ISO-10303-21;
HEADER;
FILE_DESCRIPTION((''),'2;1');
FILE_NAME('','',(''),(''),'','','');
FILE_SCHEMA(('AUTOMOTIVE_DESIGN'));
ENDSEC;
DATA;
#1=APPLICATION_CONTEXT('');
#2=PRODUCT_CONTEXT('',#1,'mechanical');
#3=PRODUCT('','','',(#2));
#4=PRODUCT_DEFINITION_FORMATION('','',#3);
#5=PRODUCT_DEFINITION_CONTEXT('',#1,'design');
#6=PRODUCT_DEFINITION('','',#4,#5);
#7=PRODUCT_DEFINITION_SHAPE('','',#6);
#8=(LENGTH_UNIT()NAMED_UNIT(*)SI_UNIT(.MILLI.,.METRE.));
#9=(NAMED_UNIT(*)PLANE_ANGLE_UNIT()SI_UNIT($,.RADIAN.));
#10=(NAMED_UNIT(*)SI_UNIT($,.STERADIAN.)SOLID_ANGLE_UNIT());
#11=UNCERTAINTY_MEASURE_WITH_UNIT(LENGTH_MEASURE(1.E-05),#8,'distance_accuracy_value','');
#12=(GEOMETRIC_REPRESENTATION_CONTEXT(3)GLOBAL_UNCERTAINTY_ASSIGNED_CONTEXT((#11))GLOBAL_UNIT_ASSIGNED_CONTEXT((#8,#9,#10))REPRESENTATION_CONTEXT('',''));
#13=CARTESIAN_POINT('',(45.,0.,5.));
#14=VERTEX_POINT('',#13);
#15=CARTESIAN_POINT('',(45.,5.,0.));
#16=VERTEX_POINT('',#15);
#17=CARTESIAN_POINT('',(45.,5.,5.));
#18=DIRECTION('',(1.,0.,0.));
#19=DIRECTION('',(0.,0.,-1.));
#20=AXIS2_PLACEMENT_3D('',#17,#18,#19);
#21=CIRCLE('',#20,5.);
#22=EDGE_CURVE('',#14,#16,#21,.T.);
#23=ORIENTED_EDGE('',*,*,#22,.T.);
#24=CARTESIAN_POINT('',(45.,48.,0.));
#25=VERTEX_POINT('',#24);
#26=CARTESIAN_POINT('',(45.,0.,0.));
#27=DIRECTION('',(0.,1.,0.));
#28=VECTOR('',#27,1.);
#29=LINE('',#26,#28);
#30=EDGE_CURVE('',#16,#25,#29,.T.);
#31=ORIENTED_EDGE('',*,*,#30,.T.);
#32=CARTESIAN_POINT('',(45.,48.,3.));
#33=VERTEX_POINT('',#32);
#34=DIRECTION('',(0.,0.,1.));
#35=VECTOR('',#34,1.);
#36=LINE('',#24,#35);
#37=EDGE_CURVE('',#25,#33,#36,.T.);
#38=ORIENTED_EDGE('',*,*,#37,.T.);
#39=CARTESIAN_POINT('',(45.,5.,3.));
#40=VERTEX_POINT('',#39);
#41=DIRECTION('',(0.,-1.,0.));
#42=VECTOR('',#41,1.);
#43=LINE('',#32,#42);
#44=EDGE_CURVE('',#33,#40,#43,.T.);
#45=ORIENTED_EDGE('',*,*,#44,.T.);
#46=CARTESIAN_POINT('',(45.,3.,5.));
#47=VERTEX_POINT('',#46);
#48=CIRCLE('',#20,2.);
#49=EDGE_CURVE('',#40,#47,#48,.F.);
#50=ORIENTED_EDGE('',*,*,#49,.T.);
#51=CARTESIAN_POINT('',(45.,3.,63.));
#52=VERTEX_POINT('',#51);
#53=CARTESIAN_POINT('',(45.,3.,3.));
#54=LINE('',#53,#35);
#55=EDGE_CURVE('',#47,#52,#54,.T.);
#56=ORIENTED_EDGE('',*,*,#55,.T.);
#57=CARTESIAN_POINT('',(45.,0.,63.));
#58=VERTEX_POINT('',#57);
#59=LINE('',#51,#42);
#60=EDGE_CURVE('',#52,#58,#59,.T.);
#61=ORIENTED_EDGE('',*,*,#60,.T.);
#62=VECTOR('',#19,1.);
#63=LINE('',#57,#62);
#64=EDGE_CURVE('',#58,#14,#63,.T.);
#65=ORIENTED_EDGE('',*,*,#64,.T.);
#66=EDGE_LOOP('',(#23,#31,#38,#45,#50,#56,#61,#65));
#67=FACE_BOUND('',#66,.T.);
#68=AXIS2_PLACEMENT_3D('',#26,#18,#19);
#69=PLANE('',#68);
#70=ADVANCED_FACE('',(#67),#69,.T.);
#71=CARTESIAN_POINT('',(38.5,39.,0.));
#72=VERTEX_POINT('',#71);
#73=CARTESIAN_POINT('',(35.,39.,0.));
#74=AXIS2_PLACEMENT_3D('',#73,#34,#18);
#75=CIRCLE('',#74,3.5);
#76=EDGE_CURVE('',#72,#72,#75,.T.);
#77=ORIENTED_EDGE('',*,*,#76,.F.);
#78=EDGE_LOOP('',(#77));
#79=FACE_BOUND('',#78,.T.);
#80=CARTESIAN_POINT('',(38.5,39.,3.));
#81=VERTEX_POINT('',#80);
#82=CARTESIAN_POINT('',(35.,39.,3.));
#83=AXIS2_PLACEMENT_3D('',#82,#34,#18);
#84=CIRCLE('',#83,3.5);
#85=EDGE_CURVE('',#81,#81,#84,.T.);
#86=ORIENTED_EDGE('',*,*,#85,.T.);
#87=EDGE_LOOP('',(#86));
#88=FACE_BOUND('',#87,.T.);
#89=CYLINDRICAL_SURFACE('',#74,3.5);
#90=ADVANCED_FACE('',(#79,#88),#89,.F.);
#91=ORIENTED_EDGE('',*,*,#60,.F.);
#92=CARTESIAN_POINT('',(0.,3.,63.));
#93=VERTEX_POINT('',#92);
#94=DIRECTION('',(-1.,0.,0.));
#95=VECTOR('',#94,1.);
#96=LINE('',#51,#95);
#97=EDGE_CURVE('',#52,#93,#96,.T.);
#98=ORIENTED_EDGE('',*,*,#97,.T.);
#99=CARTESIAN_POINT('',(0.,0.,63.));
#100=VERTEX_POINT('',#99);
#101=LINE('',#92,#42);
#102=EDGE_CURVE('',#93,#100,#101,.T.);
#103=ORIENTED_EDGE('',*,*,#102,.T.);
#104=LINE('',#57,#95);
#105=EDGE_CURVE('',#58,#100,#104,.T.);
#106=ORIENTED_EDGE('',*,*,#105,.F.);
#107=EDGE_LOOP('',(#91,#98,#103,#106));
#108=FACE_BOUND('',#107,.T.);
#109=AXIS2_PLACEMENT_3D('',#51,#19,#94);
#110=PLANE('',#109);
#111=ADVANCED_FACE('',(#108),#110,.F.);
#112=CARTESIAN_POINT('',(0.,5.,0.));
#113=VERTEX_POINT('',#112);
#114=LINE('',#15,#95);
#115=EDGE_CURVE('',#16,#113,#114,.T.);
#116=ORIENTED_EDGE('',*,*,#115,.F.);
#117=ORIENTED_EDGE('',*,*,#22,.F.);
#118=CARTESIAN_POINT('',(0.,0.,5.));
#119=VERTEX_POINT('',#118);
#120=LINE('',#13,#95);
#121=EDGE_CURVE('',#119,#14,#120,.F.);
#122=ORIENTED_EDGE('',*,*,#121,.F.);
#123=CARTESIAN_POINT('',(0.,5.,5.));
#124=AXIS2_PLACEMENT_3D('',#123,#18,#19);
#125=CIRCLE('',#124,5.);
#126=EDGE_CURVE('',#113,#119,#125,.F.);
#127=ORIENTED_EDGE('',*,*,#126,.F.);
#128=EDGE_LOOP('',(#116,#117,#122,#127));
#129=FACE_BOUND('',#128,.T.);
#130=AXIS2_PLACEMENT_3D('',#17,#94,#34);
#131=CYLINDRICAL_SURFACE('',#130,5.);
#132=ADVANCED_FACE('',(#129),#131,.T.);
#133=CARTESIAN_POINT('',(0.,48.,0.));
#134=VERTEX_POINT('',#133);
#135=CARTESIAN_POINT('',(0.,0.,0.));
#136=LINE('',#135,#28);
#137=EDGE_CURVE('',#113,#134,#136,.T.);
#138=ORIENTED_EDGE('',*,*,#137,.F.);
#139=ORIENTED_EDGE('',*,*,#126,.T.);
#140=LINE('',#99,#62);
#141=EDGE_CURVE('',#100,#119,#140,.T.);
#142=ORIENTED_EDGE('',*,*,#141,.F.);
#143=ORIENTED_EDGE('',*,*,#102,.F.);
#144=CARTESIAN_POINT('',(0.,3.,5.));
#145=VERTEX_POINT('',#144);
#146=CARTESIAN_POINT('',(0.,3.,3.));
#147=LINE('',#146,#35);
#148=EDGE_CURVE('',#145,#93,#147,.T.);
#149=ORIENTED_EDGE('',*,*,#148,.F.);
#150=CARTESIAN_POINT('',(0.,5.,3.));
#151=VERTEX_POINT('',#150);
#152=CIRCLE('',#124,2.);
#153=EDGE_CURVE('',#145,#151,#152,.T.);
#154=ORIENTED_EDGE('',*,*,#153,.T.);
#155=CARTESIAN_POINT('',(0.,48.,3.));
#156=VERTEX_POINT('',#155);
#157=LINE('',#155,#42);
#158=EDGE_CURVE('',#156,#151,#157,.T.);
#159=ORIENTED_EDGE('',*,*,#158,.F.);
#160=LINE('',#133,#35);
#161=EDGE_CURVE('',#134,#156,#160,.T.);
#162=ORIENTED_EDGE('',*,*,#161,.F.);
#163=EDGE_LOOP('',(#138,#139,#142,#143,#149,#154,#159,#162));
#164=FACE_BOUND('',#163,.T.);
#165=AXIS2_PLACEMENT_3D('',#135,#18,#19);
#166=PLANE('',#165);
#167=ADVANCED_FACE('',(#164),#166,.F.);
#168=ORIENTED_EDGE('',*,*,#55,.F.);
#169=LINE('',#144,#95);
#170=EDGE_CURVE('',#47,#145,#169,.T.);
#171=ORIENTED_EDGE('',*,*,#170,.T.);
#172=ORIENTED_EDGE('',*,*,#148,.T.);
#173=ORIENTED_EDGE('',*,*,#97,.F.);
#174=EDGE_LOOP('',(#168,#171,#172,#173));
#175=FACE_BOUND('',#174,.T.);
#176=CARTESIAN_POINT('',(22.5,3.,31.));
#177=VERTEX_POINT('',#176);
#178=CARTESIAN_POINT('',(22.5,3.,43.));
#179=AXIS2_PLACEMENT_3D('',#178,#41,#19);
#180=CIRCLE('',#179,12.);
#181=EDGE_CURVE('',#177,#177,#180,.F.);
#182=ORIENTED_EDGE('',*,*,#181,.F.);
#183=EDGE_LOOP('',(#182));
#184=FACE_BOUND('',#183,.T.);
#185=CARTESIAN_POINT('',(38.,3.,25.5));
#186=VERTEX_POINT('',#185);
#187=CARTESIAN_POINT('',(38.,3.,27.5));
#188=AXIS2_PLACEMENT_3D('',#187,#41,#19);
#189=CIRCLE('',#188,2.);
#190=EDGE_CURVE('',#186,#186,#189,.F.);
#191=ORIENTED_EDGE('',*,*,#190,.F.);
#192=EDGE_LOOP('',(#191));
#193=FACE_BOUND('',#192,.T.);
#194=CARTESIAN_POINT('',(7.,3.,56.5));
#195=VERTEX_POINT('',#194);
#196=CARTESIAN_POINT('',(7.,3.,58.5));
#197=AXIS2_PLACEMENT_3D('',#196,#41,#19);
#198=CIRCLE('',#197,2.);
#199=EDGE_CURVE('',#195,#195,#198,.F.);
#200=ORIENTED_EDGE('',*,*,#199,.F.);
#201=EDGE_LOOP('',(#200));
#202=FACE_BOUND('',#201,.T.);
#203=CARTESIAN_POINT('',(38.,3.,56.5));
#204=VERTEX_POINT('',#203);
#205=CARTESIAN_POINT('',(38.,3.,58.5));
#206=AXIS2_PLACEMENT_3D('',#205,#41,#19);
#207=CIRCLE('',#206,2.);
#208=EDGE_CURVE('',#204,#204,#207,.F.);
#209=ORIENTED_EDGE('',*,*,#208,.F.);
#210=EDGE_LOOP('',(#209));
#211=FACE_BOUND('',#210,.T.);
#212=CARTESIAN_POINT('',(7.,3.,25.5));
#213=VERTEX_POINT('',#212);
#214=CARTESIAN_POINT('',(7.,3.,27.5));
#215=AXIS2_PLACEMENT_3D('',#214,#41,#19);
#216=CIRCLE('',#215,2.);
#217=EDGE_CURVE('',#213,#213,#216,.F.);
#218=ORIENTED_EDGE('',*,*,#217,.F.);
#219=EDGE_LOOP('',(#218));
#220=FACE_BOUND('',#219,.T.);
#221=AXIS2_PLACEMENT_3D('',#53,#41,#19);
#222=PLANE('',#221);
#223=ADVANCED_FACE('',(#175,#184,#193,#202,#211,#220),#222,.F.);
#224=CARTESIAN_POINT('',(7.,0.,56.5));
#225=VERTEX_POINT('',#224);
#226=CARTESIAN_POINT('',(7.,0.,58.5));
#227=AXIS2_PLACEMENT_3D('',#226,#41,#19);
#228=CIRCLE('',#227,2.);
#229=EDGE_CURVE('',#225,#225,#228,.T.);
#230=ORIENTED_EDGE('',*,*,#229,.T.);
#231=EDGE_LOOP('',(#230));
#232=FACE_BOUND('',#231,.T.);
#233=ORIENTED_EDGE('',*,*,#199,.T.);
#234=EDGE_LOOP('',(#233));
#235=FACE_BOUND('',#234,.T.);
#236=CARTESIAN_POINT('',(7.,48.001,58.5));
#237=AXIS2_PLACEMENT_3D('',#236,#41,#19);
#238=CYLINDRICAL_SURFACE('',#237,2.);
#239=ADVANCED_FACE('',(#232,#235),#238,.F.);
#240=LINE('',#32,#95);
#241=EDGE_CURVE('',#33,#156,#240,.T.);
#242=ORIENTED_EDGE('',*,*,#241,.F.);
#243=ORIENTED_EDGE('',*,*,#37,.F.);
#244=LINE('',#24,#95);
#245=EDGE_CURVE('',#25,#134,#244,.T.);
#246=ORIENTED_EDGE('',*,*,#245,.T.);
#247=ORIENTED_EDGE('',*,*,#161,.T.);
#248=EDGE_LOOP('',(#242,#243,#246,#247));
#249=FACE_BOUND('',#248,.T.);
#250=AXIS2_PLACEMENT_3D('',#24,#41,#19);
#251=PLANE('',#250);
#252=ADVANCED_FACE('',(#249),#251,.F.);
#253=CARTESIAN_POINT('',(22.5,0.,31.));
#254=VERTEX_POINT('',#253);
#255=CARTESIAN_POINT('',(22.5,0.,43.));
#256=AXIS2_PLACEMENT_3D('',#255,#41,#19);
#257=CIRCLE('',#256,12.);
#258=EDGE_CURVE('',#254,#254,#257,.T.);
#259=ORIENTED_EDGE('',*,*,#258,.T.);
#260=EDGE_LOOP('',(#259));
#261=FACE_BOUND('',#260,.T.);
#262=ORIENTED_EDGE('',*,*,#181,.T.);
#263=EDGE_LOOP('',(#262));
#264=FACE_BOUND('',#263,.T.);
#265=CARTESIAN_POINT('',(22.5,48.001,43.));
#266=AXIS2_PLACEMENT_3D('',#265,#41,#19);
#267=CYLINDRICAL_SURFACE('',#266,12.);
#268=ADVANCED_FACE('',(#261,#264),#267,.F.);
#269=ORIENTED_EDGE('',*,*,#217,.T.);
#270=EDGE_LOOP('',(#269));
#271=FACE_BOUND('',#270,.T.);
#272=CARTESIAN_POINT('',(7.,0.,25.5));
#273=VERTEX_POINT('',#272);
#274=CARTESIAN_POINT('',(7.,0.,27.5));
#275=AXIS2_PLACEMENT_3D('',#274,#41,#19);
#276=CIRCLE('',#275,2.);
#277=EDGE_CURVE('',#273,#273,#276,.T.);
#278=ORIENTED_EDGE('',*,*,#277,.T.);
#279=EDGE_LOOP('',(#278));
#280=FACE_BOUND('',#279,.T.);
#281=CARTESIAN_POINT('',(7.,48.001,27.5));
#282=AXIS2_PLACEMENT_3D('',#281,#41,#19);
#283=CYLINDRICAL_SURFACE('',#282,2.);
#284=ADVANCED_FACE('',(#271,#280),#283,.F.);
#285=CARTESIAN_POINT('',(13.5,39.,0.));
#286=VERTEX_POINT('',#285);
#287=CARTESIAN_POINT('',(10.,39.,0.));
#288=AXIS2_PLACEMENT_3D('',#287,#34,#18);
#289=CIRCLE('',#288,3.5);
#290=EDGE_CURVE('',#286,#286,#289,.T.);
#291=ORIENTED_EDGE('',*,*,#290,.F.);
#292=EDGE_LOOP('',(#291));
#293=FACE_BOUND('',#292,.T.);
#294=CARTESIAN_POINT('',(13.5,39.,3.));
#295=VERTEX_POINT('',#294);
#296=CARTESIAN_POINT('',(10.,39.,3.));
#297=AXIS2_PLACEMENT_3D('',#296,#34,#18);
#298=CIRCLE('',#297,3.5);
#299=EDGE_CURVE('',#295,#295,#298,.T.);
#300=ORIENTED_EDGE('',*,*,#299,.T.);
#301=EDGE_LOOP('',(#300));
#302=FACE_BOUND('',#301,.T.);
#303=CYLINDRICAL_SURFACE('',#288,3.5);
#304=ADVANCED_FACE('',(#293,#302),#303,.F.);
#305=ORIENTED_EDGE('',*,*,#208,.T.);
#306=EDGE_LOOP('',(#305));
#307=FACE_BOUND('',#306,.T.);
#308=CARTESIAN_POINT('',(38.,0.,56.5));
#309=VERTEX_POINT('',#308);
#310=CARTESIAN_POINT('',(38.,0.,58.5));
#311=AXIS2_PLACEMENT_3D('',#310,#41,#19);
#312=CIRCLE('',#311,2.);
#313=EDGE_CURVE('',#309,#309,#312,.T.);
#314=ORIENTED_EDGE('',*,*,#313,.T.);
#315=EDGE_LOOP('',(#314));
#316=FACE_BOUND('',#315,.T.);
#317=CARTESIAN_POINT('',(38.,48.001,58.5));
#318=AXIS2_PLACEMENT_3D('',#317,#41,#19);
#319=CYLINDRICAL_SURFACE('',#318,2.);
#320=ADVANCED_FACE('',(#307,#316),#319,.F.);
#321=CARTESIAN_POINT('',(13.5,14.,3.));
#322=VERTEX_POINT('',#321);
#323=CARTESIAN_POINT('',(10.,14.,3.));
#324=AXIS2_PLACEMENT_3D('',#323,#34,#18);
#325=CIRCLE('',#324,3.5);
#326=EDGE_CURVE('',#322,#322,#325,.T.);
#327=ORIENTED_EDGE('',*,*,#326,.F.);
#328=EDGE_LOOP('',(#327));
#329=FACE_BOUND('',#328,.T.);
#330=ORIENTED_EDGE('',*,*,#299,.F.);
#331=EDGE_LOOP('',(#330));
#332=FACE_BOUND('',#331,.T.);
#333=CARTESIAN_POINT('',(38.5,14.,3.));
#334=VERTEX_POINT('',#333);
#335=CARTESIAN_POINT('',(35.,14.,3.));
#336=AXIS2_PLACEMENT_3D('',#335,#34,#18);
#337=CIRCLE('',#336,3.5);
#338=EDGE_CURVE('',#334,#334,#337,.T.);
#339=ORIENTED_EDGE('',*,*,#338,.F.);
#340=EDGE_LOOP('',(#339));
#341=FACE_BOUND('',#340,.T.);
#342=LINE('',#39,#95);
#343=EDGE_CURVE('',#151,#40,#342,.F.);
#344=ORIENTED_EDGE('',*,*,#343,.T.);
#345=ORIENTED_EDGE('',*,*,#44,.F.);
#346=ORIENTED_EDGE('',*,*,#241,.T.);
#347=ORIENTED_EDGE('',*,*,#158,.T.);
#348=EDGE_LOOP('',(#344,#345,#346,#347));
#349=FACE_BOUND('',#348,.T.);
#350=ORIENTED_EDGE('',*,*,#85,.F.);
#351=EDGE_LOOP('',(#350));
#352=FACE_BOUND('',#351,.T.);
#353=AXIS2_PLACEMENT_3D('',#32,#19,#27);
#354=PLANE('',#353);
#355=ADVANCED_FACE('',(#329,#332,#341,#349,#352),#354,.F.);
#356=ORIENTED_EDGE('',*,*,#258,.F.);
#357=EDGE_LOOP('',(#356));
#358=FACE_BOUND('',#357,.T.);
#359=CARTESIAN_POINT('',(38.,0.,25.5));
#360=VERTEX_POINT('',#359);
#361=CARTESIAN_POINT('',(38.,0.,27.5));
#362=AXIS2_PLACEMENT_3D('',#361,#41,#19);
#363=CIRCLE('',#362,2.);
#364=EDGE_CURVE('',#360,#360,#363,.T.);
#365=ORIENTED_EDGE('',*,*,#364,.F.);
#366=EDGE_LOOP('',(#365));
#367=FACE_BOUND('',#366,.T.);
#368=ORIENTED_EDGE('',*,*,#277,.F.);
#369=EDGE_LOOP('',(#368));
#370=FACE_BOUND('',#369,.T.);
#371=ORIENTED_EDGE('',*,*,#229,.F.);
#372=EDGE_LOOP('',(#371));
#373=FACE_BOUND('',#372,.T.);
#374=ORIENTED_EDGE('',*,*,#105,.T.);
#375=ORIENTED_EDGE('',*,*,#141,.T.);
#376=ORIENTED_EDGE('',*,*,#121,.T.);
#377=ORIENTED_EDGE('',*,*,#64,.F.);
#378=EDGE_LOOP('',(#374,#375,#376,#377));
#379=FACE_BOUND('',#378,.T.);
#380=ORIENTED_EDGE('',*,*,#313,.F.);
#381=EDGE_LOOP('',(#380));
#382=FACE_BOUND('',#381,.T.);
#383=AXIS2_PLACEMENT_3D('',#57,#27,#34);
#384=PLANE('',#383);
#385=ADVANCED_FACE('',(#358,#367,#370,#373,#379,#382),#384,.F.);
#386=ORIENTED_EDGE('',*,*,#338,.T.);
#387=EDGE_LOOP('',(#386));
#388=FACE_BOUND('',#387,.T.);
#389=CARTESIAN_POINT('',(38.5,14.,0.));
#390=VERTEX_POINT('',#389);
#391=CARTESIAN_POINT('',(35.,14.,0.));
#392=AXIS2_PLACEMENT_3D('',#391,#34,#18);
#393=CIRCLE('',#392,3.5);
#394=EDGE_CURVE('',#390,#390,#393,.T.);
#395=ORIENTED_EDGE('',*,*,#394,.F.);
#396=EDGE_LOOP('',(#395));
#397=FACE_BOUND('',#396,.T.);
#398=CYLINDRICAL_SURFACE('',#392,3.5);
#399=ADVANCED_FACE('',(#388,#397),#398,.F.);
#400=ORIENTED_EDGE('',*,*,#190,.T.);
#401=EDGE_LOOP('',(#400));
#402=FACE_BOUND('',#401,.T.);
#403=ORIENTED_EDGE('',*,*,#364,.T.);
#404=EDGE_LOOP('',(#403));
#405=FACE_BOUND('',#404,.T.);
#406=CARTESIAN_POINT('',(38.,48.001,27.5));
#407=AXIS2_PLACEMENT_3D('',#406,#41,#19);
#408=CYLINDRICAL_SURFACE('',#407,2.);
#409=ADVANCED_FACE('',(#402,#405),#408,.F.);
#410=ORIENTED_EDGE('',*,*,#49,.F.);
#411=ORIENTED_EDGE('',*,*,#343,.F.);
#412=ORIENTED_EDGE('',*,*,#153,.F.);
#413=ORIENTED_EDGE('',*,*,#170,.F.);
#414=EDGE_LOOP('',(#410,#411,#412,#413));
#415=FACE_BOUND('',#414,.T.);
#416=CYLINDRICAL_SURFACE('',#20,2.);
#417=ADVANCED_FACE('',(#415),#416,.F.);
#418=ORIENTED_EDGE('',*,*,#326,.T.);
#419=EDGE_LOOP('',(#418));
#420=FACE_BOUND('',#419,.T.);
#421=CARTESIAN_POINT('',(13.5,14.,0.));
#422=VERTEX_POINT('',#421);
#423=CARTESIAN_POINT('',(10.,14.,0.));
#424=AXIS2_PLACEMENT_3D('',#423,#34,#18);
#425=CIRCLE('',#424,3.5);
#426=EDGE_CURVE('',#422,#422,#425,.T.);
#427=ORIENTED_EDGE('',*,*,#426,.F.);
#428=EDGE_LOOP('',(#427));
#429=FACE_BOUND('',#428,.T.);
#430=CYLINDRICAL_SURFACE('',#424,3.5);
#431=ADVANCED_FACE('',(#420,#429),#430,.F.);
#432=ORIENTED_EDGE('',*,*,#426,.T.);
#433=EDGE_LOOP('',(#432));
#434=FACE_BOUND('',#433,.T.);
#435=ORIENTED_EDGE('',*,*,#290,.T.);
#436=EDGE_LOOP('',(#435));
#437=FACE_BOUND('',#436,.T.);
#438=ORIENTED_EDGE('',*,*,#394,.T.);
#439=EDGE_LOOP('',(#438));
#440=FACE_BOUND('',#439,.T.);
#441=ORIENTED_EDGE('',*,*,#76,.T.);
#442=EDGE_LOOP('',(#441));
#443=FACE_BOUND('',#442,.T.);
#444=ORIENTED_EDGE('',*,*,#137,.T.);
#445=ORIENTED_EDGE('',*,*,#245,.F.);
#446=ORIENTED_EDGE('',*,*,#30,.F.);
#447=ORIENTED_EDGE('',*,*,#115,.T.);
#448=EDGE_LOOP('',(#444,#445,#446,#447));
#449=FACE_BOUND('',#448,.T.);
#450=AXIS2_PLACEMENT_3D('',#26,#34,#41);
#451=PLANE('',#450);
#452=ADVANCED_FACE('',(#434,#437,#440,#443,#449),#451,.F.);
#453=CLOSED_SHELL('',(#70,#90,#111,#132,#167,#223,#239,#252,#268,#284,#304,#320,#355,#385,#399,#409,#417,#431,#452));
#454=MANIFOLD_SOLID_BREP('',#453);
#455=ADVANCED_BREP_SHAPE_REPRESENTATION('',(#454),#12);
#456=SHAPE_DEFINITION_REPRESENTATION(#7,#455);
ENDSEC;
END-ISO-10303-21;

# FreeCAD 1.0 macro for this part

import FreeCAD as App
import Part
import Sketcher
Q = App.Units.Quantity


def edges_at(feature, points):
    """Names of the edges that pass closest to the given points."""
    edges = feature.Shape.Edges
    near = lambda p: min(range(len(edges)), key=lambda i: edges[i].distToShape(Part.Vertex(*p))[0])
    return sorted({f"Edge{near(p) + 1}" for p in points})


def add_polygon(sketch, points):
    """Adds a closed chain of lines whose ends are joined by coincident constraints."""
    first, n = sketch.GeometryCount, len(points)
    for a, b in zip(points, points[1:] + points[:1]):
        sketch.addGeometry(Part.LineSegment(App.Vector(*a, 0), App.Vector(*b, 0)), False)
    for i in range(n):
        sketch.addConstraint(Sketcher.Constraint("Coincident", first + i, 2, first + (i + 1) % n, 1))

doc = App.newDocument("Part")
body = doc.addObject("PartDesign::Body", "Body")

sketch1 = body.newObject("Sketcher::SketchObject", "Sketch")
sketch1.AttachmentSupport = (doc.getObject("YZ_Plane"), [""])
sketch1.MapMode = "FlatFace"
add_polygon(sketch1, [(0, 0), (48, 0), (48, 3), (3, 3), (3, 63), (0, 63)])
sketch1.addConstraint([
    Sketcher.Constraint("Horizontal", 0),
    Sketcher.Constraint("Vertical", 1),
    Sketcher.Constraint("Horizontal", 2),
    Sketcher.Constraint("Vertical", 3),
    Sketcher.Constraint("Horizontal", 4),
    Sketcher.Constraint("Vertical", 5),
    Sketcher.Constraint("Coincident", 5, 2, -1, 1),
    Sketcher.Constraint("Equal", 4, 1),
    Sketcher.Constraint("DistanceX", 0, 1, 0, 2, Q("48 mm")),
    Sketcher.Constraint("DistanceX", 2, 2, 2, 1, Q("45 mm")),
    Sketcher.Constraint("DistanceY", 3, 1, 3, 2, Q("60 mm")),
])
pad1 = body.newObject("PartDesign::Pad", "Pad")
pad1.Profile = sketch1
pad1.Length = 45
doc.recompute()

fillet = body.newObject("PartDesign::Fillet", "Fillet")
fillet.Base = (pad1, edges_at(pad1, [(22.5, 3, 3)]))
fillet.Radius = 2
doc.recompute()

fillet2 = body.newObject("PartDesign::Fillet", "Fillet001")
fillet2.Base = (fillet, edges_at(fillet, [(22.5, 0, 0)]))
fillet2.Radius = 5

sketch2 = body.newObject("Sketcher::SketchObject", "Sketch001")
sketch2.AttachmentSupport = (doc.getObject("XZ_Plane"), [""])
sketch2.MapMode = "FlatFace"
sketch2.addGeometry(Part.Circle(App.Vector(38, 58.5, 0), App.Vector(0, 0, 1), 2), False)
sketch2.addConstraint([
    Sketcher.Constraint("Diameter", 0, Q("4 mm")),
    Sketcher.Constraint("DistanceX", -1, 1, 0, 3, Q("38 mm")),
    Sketcher.Constraint("DistanceY", -1, 1, 0, 3, Q("58.5 mm")),
])
pocket1 = body.newObject("PartDesign::Pocket", "Pocket")
pocket1.Profile = sketch2
pocket1.Type = "UpToFirst"

sketch3 = body.newObject("Sketcher::SketchObject", "Sketch002")
sketch3.AttachmentSupport = (doc.getObject("XZ_Plane"), [""])
sketch3.MapMode = "FlatFace"
sketch3.addGeometry(Part.Circle(App.Vector(38, 27.5, 0), App.Vector(0, 0, 1), 2), False)
sketch3.addConstraint([
    Sketcher.Constraint("Diameter", 0, Q("4 mm")),
    Sketcher.Constraint("DistanceX", -1, 1, 0, 3, Q("38 mm")),
    Sketcher.Constraint("DistanceY", -1, 1, 0, 3, Q("27.5 mm")),
])
pocket2 = body.newObject("PartDesign::Pocket", "Pocket001")
pocket2.Profile = sketch3
pocket2.Type = "UpToFirst"

sketch4 = body.newObject("Sketcher::SketchObject", "Sketch003")
sketch4.AttachmentSupport = (doc.getObject("XZ_Plane"), [""])
sketch4.MapMode = "FlatFace"
sketch4.addGeometry(Part.Circle(App.Vector(7, 58.5, 0), App.Vector(0, 0, 1), 2), False)
sketch4.addConstraint([
    Sketcher.Constraint("Diameter", 0, Q("4 mm")),
    Sketcher.Constraint("DistanceX", -1, 1, 0, 3, Q("7 mm")),
    Sketcher.Constraint("DistanceY", -1, 1, 0, 3, Q("58.5 mm")),
])
pocket3 = body.newObject("PartDesign::Pocket", "Pocket002")
pocket3.Profile = sketch4
pocket3.Type = "UpToFirst"

sketch5 = body.newObject("Sketcher::SketchObject", "Sketch004")
sketch5.AttachmentSupport = (doc.getObject("XZ_Plane"), [""])
sketch5.MapMode = "FlatFace"
sketch5.addGeometry(Part.Circle(App.Vector(7, 27.5, 0), App.Vector(0, 0, 1), 2), False)
sketch5.addConstraint([
    Sketcher.Constraint("Diameter", 0, Q("4 mm")),
    Sketcher.Constraint("DistanceX", -1, 1, 0, 3, Q("7 mm")),
    Sketcher.Constraint("DistanceY", -1, 1, 0, 3, Q("27.5 mm")),
])
pocket4 = body.newObject("PartDesign::Pocket", "Pocket003")
pocket4.Profile = sketch5
pocket4.Type = "UpToFirst"

sketch6 = body.newObject("Sketcher::SketchObject", "Sketch005")
sketch6.AttachmentSupport = (doc.getObject("XZ_Plane"), [""])
sketch6.MapMode = "FlatFace"
sketch6.addGeometry(Part.Circle(App.Vector(22.5, 43, 0), App.Vector(0, 0, 1), 12), False)
sketch6.addConstraint([
    Sketcher.Constraint("Diameter", 0, Q("24 mm")),
    Sketcher.Constraint("DistanceY", -1, 1, 0, 3, Q("43 mm")),
    Sketcher.Constraint("DistanceX", -1, 1, 0, 3, Q("22.5 mm")),
])
pocket5 = body.newObject("PartDesign::Pocket", "Pocket004")
pocket5.Profile = sketch6
pocket5.Type = "UpToFirst"

sketch7 = body.newObject("Sketcher::SketchObject", "Sketch006")
sketch7.AttachmentSupport = (doc.getObject("XY_Plane"), [""])
sketch7.MapMode = "FlatFace"
sketch7.AttachmentOffset = App.Placement(App.Vector(0, 0, 3), App.Rotation())
sketch7.addGeometry([
    Part.Circle(App.Vector(35, 39, 0), App.Vector(0, 0, 1), 3.5),
    Part.Circle(App.Vector(35, 14, 0), App.Vector(0, 0, 1), 3.5),
    Part.Circle(App.Vector(10, 39, 0), App.Vector(0, 0, 1), 3.5),
    Part.Circle(App.Vector(10, 14, 0), App.Vector(0, 0, 1), 3.5),
], False)
sketch7.addConstraint([
    Sketcher.Constraint("Equal", 0, 1),
    Sketcher.Constraint("Equal", 1, 2),
    Sketcher.Constraint("Equal", 2, 3),
    Sketcher.Constraint("Horizontal", 0, 3, 2, 3),
    Sketcher.Constraint("Horizontal", 1, 3, 3, 3),
    Sketcher.Constraint("Vertical", 0, 3, 1, 3),
    Sketcher.Constraint("Vertical", 2, 3, 3, 3),
    Sketcher.Constraint("Diameter", 0, Q("7 mm")),
    Sketcher.Constraint("DistanceX", -1, 1, 0, 3, Q("35 mm")),
    Sketcher.Constraint("DistanceY", -1, 1, 0, 3, Q("39 mm")),
    Sketcher.Constraint("DistanceY", -1, 1, 1, 3, Q("14 mm")),
    Sketcher.Constraint("DistanceX", -1, 1, 2, 3, Q("10 mm")),
])
pocket6 = body.newObject("PartDesign::Pocket", "Pocket005")
pocket6.Profile = sketch7
pocket6.Type = "ThroughAll"

doc.recompute()
